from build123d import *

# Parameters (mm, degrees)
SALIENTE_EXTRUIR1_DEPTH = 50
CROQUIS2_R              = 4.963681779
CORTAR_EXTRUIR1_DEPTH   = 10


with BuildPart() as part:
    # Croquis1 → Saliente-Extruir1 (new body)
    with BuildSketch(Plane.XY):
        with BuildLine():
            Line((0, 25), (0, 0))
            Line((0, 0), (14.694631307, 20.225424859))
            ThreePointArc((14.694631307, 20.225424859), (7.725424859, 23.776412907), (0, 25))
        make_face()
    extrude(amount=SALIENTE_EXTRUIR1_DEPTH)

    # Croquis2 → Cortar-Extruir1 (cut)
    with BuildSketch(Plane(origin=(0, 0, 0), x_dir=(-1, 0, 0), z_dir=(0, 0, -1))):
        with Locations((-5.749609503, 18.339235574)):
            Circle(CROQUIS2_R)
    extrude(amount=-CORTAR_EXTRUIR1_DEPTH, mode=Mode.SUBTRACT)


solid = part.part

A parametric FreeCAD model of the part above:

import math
import FreeCAD as App
import Part
import Sketcher

V = App.Vector
Q = App.Units.Quantity

doc = App.newDocument("Part")
body = doc.addObject("PartDesign::Body", "Body")

# Sketch on XY plane
sketch1 = doc.addObject("Sketcher::SketchObject", "Sketch")
body.addObject(sketch1)
sketch1.AttachmentSupport = (doc.XY_Plane, [""])
sketch1.MapMode = "FlatFace"
sketch1.addGeometry([
    Part.LineSegment(V(0, 25, 0), V(0, 0, 0)),
    Part.LineSegment(V(0, 0, 0), V(15, 20, 0)),
    Part.ArcOfCircle(Part.Circle(V(0, 0, 0), V(0, 0, 1), 25), math.radians(54), math.radians(90)),
], False)
sketch1.addConstraint([
    Sketcher.Constraint("Coincident", 0, 2, 1, 1),
    Sketcher.Constraint("Coincident", 1, 2, 2, 1),
    Sketcher.Constraint("Coincident", 2, 2, 0, 1),
    Sketcher.Constraint("Vertical", 0),
    Sketcher.Constraint("Coincident", 2, 3, -1, 1),
    Sketcher.Constraint("Coincident", 0, 2, -1, 1),
    Sketcher.Constraint("Radius", 2, 25.0),
    Sketcher.Constraint("Angle", 1, Q("54 deg")),
])
pad1 = doc.addObject("PartDesign::Pad", "Pad")
body.addObject(pad1)
pad1.Profile = sketch1
pad1.Length = 50

# Sketch on XY plane
sketch2 = doc.addObject("Sketcher::SketchObject", "Sketch001")
body.addObject(sketch2)
sketch2.AttachmentSupport = (doc.XY_Plane, [""])
sketch2.MapMode = "FlatFace"
sketch2.addGeometry(Part.Circle(V(5.7, 18.3, 0), V(0, 0, 1), 5), False)
sketch2.addConstraint([
    Sketcher.Constraint("Diameter", 0, 9.927364),
    Sketcher.Constraint("DistanceX", -1, 1, 0, 3, 5.74961),
    Sketcher.Constraint("DistanceY", -1, 1, 0, 3, 18.339236),
])
pocket1 = doc.addObject("PartDesign::Pocket", "Pocket")
body.addObject(pocket1)
pocket1.Profile = sketch2
pocket1.Length = 10
pocket1.Reversed = True

doc.recompute()
